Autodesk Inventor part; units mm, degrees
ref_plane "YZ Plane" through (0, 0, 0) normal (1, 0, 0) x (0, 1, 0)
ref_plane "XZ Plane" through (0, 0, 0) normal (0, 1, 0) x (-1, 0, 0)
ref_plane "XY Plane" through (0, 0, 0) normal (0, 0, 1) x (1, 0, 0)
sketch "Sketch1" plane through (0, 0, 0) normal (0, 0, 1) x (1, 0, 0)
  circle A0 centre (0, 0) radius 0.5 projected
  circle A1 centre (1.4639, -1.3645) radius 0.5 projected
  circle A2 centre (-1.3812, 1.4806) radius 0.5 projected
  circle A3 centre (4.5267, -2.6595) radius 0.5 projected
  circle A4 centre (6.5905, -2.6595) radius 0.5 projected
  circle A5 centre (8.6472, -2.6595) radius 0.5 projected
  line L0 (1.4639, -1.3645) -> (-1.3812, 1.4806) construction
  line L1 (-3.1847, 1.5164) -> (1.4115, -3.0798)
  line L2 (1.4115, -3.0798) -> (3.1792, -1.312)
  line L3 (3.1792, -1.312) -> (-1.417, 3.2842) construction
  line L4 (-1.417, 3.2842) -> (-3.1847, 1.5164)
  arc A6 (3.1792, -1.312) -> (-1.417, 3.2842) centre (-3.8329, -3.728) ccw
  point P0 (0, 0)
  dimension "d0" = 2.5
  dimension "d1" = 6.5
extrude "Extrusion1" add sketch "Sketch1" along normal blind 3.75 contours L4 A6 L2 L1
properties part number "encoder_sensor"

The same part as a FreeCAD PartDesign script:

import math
import FreeCAD as App
import Part
import Sketcher
from FreeCAD import Vector
Q = App.Units.Quantity

doc = App.newDocument("Part")
params = doc.addObject("Spreadsheet::Sheet", "Params")
for row, (alias, value) in enumerate([
    ("sketch1_diameter", "1 mm"),
    ("sketch1_length", "2.5 mm"),
    ("sketch1_length2", "6.5 mm"),
    ("pad1_length", "3.75 mm"),
], start=1):
    params.set(f"A{row}", alias)
    params.set(f"B{row}", "=" + value)
    params.setAlias(f"B{row}", alias)

body = doc.addObject("PartDesign::Body", "Body")

sketch1 = body.newObject("Sketcher::SketchObject", "Sketch")
sketch1.AttachmentSupport = (doc.getObject("XY_Plane"), [""])
sketch1.MapMode = "FlatFace"
sketch1.addGeometry(Part.LineSegment(Vector(-1.4, 3.3, 0), Vector(-3.2, 1.5, 0)), False)
sketch1.addGeometry(Part.LineSegment(Vector(-3.2, 1.5, 0), Vector(1.4, -3.1, 0)), False)
sketch1.addGeometry(Part.LineSegment(Vector(1.4, -3.1, 0), Vector(3.2, -1.3, 0)), False)
sketch1.addGeometry(Part.ArcOfCircle(Part.Circle(Vector(-3.8, -3.7, 0), Vector(0, 0, 1), 7.4), math.radians(19), math.radians(71)), False)
sketch1.addGeometry(Part.Circle(Vector(1.5, -1.4, 0), Vector(0, 0, 1), 0.5), False)
sketch1.addGeometry(Part.Circle(Vector(0, 0, 0), Vector(0, 0, 1), 0.5), False)
sketch1.addGeometry(Part.Circle(Vector(-1.4, 1.5, 0), Vector(0, 0, 1), 0.5), False)
sketch1.addConstraint(Sketcher.Constraint("Coincident", 0, 2, 1, 1))
sketch1.addConstraint(Sketcher.Constraint("Coincident", 1, 2, 2, 1))
sketch1.addConstraint(Sketcher.Constraint("Coincident", 2, 2, 3, 1))
sketch1.addConstraint(Sketcher.Constraint("Coincident", 3, 2, 0, 1))
sketch1.addConstraint(Sketcher.Constraint("Coincident", 5, 3, -1, 1))
sketch1.addConstraint(Sketcher.Constraint("Equal", 4, 5))
sketch1.addConstraint(Sketcher.Constraint("Equal", 5, 6))
sketch1.addConstraint(Sketcher.Constraint("Perpendicular", 0, 1))
sketch1.addConstraint(Sketcher.Constraint("Perpendicular", 1, 2))
sketch1.addConstraint(Sketcher.Constraint("Equal", 0, 2))
sketch1.addConstraint(Sketcher.Constraint("Diameter", 4, Q("1 mm")))
sketch1.addConstraint(Sketcher.Constraint("Distance", 0, Q("2.5 mm")))
sketch1.addConstraint(Sketcher.Constraint("Distance", 1, Q("6.5 mm")))
sketch1.addConstraint(Sketcher.Constraint("Angle", 1, Q("-45 deg")))
sketch1.addConstraint(Sketcher.Constraint("Radius", 3, Q("7.4166 mm")))
sketch1.addConstraint(Sketcher.Constraint("DistanceX", 3, 3, -1, 1, Q("3.833 mm")))
sketch1.addConstraint(Sketcher.Constraint("DistanceY", 3, 3, -1, 1, Q("3.728 mm")))
sketch1.addConstraint(Sketcher.Constraint("DistanceX", -1, 1, 4, 3, Q("1.464 mm")))
sketch1.addConstraint(Sketcher.Constraint("DistanceX", 6, 3, 4, 3, Q("2.845 mm")))
sketch1.addConstraint(Sketcher.Constraint("DistanceY", 4, 3, 6, 3, Q("2.845 mm")))
sketch1.addConstraint(Sketcher.Constraint("DistanceY", 4, 3, 0, 2, Q("2.881 mm")))
sketch1.setExpression("Constraints[10]", "Params.sketch1_diameter")
sketch1.setExpression("Constraints[11]", "Params.sketch1_length")
sketch1.setExpression("Constraints[12]", "Params.sketch1_length2")
pad1 = body.newObject("PartDesign::Pad", "Pad")
pad1.Profile = sketch1
pad1.setExpression("Length", "Params.pad1_length")

doc.recompute()
